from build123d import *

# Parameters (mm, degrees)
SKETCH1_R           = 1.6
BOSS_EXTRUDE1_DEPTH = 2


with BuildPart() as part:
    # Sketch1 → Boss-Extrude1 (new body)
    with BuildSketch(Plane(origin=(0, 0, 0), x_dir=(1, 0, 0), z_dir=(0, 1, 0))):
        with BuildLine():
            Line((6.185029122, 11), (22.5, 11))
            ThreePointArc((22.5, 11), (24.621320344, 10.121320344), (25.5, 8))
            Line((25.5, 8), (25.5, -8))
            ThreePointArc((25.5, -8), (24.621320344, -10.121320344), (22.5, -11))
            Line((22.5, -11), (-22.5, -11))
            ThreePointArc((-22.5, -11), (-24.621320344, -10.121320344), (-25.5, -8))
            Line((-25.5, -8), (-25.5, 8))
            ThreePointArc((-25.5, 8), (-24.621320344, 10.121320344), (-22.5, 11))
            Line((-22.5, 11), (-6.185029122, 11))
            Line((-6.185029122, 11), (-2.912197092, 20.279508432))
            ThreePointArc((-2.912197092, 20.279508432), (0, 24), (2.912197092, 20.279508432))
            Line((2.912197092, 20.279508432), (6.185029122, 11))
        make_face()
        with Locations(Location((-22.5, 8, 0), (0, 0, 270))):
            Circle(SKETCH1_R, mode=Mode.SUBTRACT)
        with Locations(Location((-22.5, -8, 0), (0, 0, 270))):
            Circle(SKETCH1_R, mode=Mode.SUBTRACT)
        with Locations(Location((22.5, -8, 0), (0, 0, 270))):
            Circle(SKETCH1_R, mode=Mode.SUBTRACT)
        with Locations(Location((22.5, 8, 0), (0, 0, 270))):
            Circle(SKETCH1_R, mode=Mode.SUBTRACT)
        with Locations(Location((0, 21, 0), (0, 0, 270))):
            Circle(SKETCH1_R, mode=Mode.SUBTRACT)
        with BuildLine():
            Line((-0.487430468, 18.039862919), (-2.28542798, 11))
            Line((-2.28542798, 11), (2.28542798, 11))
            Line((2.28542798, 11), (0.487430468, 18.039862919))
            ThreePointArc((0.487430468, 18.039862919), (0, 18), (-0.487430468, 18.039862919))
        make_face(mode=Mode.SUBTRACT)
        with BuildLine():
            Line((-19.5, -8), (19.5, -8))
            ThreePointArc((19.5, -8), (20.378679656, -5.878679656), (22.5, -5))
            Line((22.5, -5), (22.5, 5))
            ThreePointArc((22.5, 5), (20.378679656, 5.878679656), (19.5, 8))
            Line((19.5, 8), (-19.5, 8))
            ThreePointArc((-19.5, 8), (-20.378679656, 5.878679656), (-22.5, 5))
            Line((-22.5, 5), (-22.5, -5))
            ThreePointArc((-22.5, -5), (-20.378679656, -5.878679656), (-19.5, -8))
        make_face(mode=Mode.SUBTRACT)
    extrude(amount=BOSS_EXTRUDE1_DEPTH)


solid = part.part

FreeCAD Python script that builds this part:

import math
import FreeCAD as App
import Part
import Sketcher
Q = App.Units.Quantity

doc = App.newDocument("Part")
body = doc.addObject("PartDesign::Body", "Body")

# Sketch on XZ plane
sketch1 = doc.addObject("Sketcher::SketchObject", "Sketch")
body.addObject(sketch1)
sketch1.AttachmentSupport = (doc.XZ_Plane, [""])
sketch1.MapMode = "FlatFace"
sketch1.addGeometry([
    Part.LineSegment(App.Vector(22.5, -11, 0), App.Vector(6.2, -11, 0)),  # 0
    Part.LineSegment(App.Vector(6.2, -11, 0), App.Vector(2.9, -20.3, 0)),  # 1
    Part.ArcOfCircle(Part.Circle(App.Vector(0, -21, 0), App.Vector(0, 0, 1), 3), math.radians(166), math.radians(374)),  # 2
    Part.LineSegment(App.Vector(-2.9, -20.3, 0), App.Vector(-6.2, -11, 0)),  # 3
    Part.LineSegment(App.Vector(-6.2, -11, 0), App.Vector(-22.5, -11, 0)),  # 4
    Part.ArcOfCircle(Part.Circle(App.Vector(-22.5, -8, 0), App.Vector(0, 0, 1), 3), math.radians(180), math.radians(270)),  # 5
    Part.LineSegment(App.Vector(-25.5, -8, 0), App.Vector(-25.5, 8, 0)),  # 6
    Part.ArcOfCircle(Part.Circle(App.Vector(-22.5, 8, 0), App.Vector(0, 0, 1), 3), math.radians(90), math.radians(180)),  # 7
    Part.LineSegment(App.Vector(-22.5, 11, 0), App.Vector(22.5, 11, 0)),  # 8
    Part.ArcOfCircle(Part.Circle(App.Vector(22.5, 8, 0), App.Vector(0, 0, 1), 3), math.radians(0), math.radians(90)),  # 9
    Part.LineSegment(App.Vector(25.5, 8, 0), App.Vector(25.5, -8, 0)),  # 10
    Part.ArcOfCircle(Part.Circle(App.Vector(22.5, -8, 0), App.Vector(0, 0, 1), 3), math.radians(-90), math.radians(0)),  # 11
    Part.Circle(App.Vector(22.5, 8, 0), App.Vector(0, 0, 1), 1.6),  # 12
    Part.Circle(App.Vector(-22.5, 8, 0), App.Vector(0, 0, 1), 1.6),  # 13
    Part.ArcOfCircle(Part.Circle(App.Vector(-22.5, 8, 0), App.Vector(0, 0, 1), 3), math.radians(-90), math.radians(0)),  # 14
    Part.LineSegment(App.Vector(-22.5, 5, 0), App.Vector(-22.5, -5, 0)),  # 15
    Part.ArcOfCircle(Part.Circle(App.Vector(-22.5, -8, 0), App.Vector(0, 0, 1), 3), math.radians(0), math.radians(90)),  # 16
    Part.LineSegment(App.Vector(-19.5, -8, 0), App.Vector(19.5, -8, 0)),  # 17
    Part.ArcOfCircle(Part.Circle(App.Vector(22.5, -8, 0), App.Vector(0, 0, 1), 3), math.radians(90), math.radians(180)),  # 18
    Part.LineSegment(App.Vector(22.5, -5, 0), App.Vector(22.5, 5, 0)),  # 19
    Part.ArcOfCircle(Part.Circle(App.Vector(22.5, 8, 0), App.Vector(0, 0, 1), 3), math.radians(180), math.radians(270)),  # 20
    Part.LineSegment(App.Vector(19.5, 8, 0), App.Vector(-19.5, 8, 0)),  # 21
    Part.Circle(App.Vector(22.5, -8, 0), App.Vector(0, 0, 1), 1.6),  # 22
    Part.ArcOfCircle(Part.Circle(App.Vector(0, -21, 0), App.Vector(0, 0, 1), 3), math.radians(80.65), math.radians(99.35)),  # 23
    Part.LineSegment(App.Vector(0.5, -18, 0), App.Vector(2.3, -11, 0)),  # 24
    Part.LineSegment(App.Vector(2.3, -11, 0), App.Vector(-2.3, -11, 0)),  # 25
    Part.LineSegment(App.Vector(-2.3, -11, 0), App.Vector(-0.5, -18, 0)),  # 26
    Part.Circle(App.Vector(-22.5, -8, 0), App.Vector(0, 0, 1), 1.6),  # 27
    Part.Circle(App.Vector(0, -21, 0), App.Vector(0, 0, 1), 1.6),  # 28
], False)
sketch1.addConstraint([
    Sketcher.Constraint("Coincident", 0, 2, 1, 1),
    Sketcher.Constraint("Coincident", 1, 2, 2, 2),
    Sketcher.Constraint("Coincident", 2, 1, 3, 1),
    Sketcher.Constraint("Coincident", 3, 2, 4, 1),
    Sketcher.Constraint("Tangent", 4, 2, 5, 2),
    Sketcher.Constraint("Tangent", 5, 1, 6, 1),
    Sketcher.Constraint("Tangent", 6, 2, 7, 2),
    Sketcher.Constraint("Tangent", 7, 1, 8, 1),
    Sketcher.Constraint("Tangent", 8, 2, 9, 2),
    Sketcher.Constraint("Tangent", 9, 1, 10, 1),
    Sketcher.Constraint("Tangent", 10, 2, 11, 2),
    Sketcher.Constraint("Tangent", 11, 1, 0, 1),
    Sketcher.Constraint("Coincident", 14, 1, 15, 1),
    Sketcher.Constraint("Coincident", 15, 2, 16, 2),
    Sketcher.Constraint("Coincident", 16, 1, 17, 1),
    Sketcher.Constraint("Coincident", 17, 2, 18, 2),
    Sketcher.Constraint("Coincident", 18, 1, 19, 1),
    Sketcher.Constraint("Coincident", 19, 2, 20, 2),
    Sketcher.Constraint("Coincident", 20, 1, 21, 1),
    Sketcher.Constraint("Coincident", 21, 2, 14, 2),
    Sketcher.Constraint("Coincident", 23, 1, 24, 1),
    Sketcher.Constraint("Coincident", 24, 2, 25, 1),
    Sketcher.Constraint("Coincident", 25, 2, 26, 1),
    Sketcher.Constraint("Coincident", 26, 2, 23, 2),
    Sketcher.Constraint("Horizontal", 0),
    Sketcher.Constraint("Horizontal", 4),
    Sketcher.Constraint("Vertical", 6),
    Sketcher.Constraint("Horizontal", 8),
    Sketcher.Constraint("Vertical", 10),
    Sketcher.Constraint("Vertical", 15),
    Sketcher.Constraint("Horizontal", 17),
    Sketcher.Constraint("Vertical", 19),
    Sketcher.Constraint("Horizontal", 21),
    Sketcher.Constraint("Horizontal", 25),
    Sketcher.Constraint("Coincident", 12, 3, 9, 3),
    Sketcher.Constraint("Coincident", 13, 3, 7, 3),
    Sketcher.Constraint("Coincident", 14, 3, 7, 3),
    Sketcher.Constraint("Coincident", 16, 3, 5, 3),
    Sketcher.Constraint("Coincident", 18, 3, 11, 3),
    Sketcher.Constraint("Coincident", 20, 3, 9, 3),
    Sketcher.Constraint("Coincident", 22, 3, 11, 3),
    Sketcher.Constraint("Coincident", 23, 3, 2, 3),
    Sketcher.Constraint("Coincident", 27, 3, 5, 3),
    Sketcher.Constraint("Coincident", 28, 3, 2, 3),
    Sketcher.Constraint("Equal", 2, 5),
    Sketcher.Constraint("Equal", 5, 7),
    Sketcher.Constraint("Equal", 7, 9),
    Sketcher.Constraint("Equal", 9, 11),
    Sketcher.Constraint("Equal", 12, 13),
    Sketcher.Constraint("Equal", 11, 14),
    Sketcher.Constraint("Equal", 14, 16),
    Sketcher.Constraint("Equal", 16, 18),
    Sketcher.Constraint("Equal", 18, 20),
    Sketcher.Constraint("Equal", 13, 22),
    Sketcher.Constraint("Equal", 20, 23),
    Sketcher.Constraint("Equal", 22, 27),
    Sketcher.Constraint("Equal", 27, 28),
    Sketcher.Constraint("Symmetric", 5, 3, 9, 3, -1, 1),
    Sketcher.Constraint("Symmetric", 14, 1, 18, 1, -1, 1),
    Sketcher.Constraint("Symmetric", 1, 2, 2, 1, -2),
    Sketcher.Constraint("Horizontal", 10, 2, 16, 1),
    Sketcher.Constraint("Horizontal", 9, 1, 20, 1),
    Sketcher.Constraint("Horizontal", 11, 1, 24, 2),
    Sketcher.Constraint("Horizontal", 23, 1, 26, 2),
    Sketcher.Constraint("Vertical", 7, 1, 14, 1),
    Sketcher.Constraint("Equal", 0, 4),
    Sketcher.Constraint("Equal", 24, 26),
    Sketcher.Constraint("Radius", 2, Q("3 mm")),
    Sketcher.Constraint("Diameter", 12, Q("3.2 mm")),
    Sketcher.Constraint("DistanceX", 8, 1, 8, 2, Q("45 mm")),
    Sketcher.Constraint("DistanceY", 6, 1, 6, 2, Q("16 mm")),
    Sketcher.Constraint("DistanceY", 2, 3, -1, 1, Q("21 mm")),
    Sketcher.Constraint("DistanceX", 0, 2, 0, 1, Q("16.314971 mm")),
    Sketcher.Constraint("DistanceX", 24, 2, 0, 2, Q("3.899601 mm")),
    Sketcher.Constraint("Distance", 1, Q("9.839751 mm")),
    Sketcher.Constraint("DistanceX", -1, 1, 23, 1, Q("0.48743 mm")),
])
pad1 = doc.addObject("PartDesign::Pad", "Pad")
body.addObject(pad1)
pad1.Profile = sketch1
pad1.Length = 2
pad1.Reversed = True

doc.recompute()
